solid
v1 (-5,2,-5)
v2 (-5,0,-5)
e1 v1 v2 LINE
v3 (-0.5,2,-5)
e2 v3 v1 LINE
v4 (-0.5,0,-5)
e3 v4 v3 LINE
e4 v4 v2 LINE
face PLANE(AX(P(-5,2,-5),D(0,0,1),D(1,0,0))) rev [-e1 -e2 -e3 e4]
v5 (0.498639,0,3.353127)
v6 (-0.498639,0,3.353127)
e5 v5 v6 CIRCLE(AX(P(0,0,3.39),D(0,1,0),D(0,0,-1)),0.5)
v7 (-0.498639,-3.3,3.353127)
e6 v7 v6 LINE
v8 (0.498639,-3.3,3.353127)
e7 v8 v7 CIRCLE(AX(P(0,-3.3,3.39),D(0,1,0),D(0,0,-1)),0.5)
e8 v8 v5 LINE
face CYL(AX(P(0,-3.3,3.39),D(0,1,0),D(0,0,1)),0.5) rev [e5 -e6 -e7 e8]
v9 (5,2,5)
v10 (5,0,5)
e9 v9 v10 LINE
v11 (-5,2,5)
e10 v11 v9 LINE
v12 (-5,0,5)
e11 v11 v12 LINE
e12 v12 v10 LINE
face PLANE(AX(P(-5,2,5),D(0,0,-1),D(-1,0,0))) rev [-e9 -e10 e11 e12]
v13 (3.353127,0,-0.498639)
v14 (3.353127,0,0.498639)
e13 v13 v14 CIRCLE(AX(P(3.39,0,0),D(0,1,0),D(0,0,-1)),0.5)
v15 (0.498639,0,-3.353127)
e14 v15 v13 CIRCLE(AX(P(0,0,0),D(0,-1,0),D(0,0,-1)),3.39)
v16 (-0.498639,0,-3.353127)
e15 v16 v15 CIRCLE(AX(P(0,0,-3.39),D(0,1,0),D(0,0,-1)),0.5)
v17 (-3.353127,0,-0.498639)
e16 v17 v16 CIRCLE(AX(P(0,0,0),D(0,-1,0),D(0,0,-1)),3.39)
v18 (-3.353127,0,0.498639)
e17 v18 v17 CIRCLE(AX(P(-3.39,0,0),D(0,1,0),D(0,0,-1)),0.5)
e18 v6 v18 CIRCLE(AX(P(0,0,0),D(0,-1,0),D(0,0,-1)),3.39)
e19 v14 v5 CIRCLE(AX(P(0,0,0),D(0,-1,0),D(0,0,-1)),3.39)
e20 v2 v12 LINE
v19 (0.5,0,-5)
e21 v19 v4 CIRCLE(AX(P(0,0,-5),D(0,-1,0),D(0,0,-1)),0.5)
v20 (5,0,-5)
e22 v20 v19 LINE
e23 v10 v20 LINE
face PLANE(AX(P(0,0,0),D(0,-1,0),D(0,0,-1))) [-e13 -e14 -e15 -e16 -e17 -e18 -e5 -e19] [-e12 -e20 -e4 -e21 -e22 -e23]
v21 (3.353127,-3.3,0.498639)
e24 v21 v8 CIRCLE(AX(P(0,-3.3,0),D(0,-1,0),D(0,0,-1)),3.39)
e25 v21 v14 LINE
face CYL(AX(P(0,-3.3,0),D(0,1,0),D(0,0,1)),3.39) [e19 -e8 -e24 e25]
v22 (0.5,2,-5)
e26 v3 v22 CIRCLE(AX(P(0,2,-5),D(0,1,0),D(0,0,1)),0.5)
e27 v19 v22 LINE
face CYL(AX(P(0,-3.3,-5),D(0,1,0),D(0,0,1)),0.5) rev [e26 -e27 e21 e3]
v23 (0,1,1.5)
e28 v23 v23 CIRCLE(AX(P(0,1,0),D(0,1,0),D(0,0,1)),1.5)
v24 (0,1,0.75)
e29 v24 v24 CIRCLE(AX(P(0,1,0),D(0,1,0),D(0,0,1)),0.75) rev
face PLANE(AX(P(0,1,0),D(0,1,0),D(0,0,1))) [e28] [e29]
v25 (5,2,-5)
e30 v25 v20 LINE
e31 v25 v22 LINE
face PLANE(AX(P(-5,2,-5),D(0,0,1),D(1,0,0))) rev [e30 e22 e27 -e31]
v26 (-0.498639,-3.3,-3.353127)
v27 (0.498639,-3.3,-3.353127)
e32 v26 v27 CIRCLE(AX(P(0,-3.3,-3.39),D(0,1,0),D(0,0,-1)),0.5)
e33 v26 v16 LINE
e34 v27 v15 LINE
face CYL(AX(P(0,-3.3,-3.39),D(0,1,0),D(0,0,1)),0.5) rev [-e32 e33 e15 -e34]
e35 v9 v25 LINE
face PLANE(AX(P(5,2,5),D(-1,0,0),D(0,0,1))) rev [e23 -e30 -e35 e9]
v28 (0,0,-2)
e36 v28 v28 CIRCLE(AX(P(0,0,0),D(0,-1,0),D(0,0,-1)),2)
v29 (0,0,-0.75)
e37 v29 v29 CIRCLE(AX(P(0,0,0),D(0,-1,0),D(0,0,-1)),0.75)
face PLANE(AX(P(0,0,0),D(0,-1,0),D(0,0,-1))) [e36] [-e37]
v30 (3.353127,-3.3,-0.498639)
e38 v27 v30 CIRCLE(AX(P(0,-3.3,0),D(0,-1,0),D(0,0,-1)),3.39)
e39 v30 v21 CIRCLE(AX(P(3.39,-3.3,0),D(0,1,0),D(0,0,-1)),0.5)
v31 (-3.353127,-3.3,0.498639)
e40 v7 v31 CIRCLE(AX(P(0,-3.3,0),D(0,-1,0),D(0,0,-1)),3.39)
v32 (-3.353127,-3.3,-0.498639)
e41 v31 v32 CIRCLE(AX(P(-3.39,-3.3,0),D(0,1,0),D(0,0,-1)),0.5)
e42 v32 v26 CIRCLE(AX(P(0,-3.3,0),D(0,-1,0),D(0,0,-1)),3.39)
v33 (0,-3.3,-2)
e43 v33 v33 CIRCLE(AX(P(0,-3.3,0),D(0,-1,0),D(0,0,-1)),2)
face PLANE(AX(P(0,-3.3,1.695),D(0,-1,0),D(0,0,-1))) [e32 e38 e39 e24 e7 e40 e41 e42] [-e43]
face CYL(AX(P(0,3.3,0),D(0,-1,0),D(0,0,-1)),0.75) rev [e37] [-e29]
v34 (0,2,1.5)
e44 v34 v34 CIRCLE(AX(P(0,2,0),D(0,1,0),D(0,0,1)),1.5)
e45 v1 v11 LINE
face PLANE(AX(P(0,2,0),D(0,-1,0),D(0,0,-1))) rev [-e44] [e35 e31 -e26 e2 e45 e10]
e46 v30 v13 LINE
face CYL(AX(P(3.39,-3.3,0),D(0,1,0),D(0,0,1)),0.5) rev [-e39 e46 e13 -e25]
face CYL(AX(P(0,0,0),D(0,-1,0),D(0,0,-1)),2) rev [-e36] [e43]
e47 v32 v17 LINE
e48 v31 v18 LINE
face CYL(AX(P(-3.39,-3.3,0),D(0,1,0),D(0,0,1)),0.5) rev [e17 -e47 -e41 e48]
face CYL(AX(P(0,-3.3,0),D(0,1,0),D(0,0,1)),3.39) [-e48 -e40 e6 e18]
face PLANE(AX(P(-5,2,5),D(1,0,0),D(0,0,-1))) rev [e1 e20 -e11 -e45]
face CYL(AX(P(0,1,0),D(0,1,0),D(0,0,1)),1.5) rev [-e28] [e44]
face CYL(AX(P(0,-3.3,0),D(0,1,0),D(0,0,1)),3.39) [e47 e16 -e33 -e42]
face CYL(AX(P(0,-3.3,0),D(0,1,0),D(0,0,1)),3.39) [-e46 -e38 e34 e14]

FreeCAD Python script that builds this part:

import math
import FreeCAD as App
import Part
import Sketcher
from FreeCAD import Vector
Q = App.Units.Quantity

doc = App.newDocument("Part")
body = doc.addObject("PartDesign::Body", "Body")

sketch1 = body.newObject("Sketcher::SketchObject", "Sketch")
sketch1.AttachmentSupport = (doc.getObject("XZ_Plane"), [""])
sketch1.MapMode = "FlatFace"
sketch1.addGeometry(Part.LineSegment(Vector(-5, -5, 0), Vector(-5, 5, 0)), False)
sketch1.addGeometry(Part.LineSegment(Vector(-5, 5, 0), Vector(5, 5, 0)), False)
sketch1.addGeometry(Part.LineSegment(Vector(5, 5, 0), Vector(5, -5, 0)), False)
sketch1.addGeometry(Part.LineSegment(Vector(5, -5, 0), Vector(-5, -5, 0)), False)
sketch1.addConstraint(Sketcher.Constraint("Coincident", 0, 2, 1, 1))
sketch1.addConstraint(Sketcher.Constraint("Coincident", 1, 2, 2, 1))
sketch1.addConstraint(Sketcher.Constraint("Coincident", 2, 2, 3, 1))
sketch1.addConstraint(Sketcher.Constraint("Coincident", 3, 2, 0, 1))
sketch1.addConstraint(Sketcher.Constraint("Vertical", 0))
sketch1.addConstraint(Sketcher.Constraint("Horizontal", 1))
sketch1.addConstraint(Sketcher.Constraint("Vertical", 2))
sketch1.addConstraint(Sketcher.Constraint("Horizontal", 3))
sketch1.addConstraint(Sketcher.Constraint("Symmetric", 0, 2, 2, 2, -1, 1))
sketch1.addConstraint(Sketcher.Constraint("Equal", 3, 0))
sketch1.addConstraint(Sketcher.Constraint("DistanceX", 1, 1, 1, 2, Q("10 mm")))
pad1 = body.newObject("PartDesign::Pad", "Pad")
pad1.Profile = sketch1
pad1.Length = 2
pad1.Reversed = True

sketch2 = body.newObject("Sketcher::SketchObject", "Sketch001")
sketch2.AttachmentSupport = (doc.getObject("XZ_Plane"), [""])
sketch2.MapMode = "FlatFace"
sketch2.addGeometry(Part.ArcOfCircle(Part.Circle(Vector(0, 0, 0), Vector(0, 0, 1), 3.39), math.radians(-171.541616), math.radians(-98.458384)), False)
sketch2.addGeometry(Part.ArcOfCircle(Part.Circle(Vector(0, -3.39, 0), Vector(0, 0, 1), 0.5), math.radians(4.229192), math.radians(175.770808)), False)
sketch2.addGeometry(Part.ArcOfCircle(Part.Circle(Vector(0, 0, 0), Vector(0, 0, 1), 3.39), math.radians(-81.541616), math.radians(-8.458384)), False)
sketch2.addGeometry(Part.ArcOfCircle(Part.Circle(Vector(3.39, 0, 0), Vector(0, 0, 1), 0.5), math.radians(94.229192), math.radians(265.770808)), False)
sketch2.addGeometry(Part.ArcOfCircle(Part.Circle(Vector(0, 0, 0), Vector(0, 0, 1), 3.39), math.radians(8.458384), math.radians(81.541616)), False)
sketch2.addGeometry(Part.ArcOfCircle(Part.Circle(Vector(0, 3.39, 0), Vector(0, 0, 1), 0.5), math.radians(-175.770808), math.radians(-4.229192)), False)
sketch2.addGeometry(Part.ArcOfCircle(Part.Circle(Vector(0, 0, 0), Vector(0, 0, 1), 3.39), math.radians(98.458384), math.radians(171.541616)), False)
sketch2.addGeometry(Part.ArcOfCircle(Part.Circle(Vector(-3.39, 0, 0), Vector(0, 0, 1), 0.5), math.radians(-85.770808), math.radians(85.770808)), False)
sketch2.addConstraint(Sketcher.Constraint("Coincident", 0, 2, 1, 2))
sketch2.addConstraint(Sketcher.Constraint("Coincident", 1, 1, 2, 1))
sketch2.addConstraint(Sketcher.Constraint("Coincident", 2, 2, 3, 2))
sketch2.addConstraint(Sketcher.Constraint("Coincident", 3, 1, 4, 1))
sketch2.addConstraint(Sketcher.Constraint("Coincident", 4, 2, 5, 2))
sketch2.addConstraint(Sketcher.Constraint("Coincident", 5, 1, 6, 1))
sketch2.addConstraint(Sketcher.Constraint("Coincident", 6, 2, 7, 2))
sketch2.addConstraint(Sketcher.Constraint("Coincident", 7, 1, 0, 1))
sketch2.addConstraint(Sketcher.Constraint("Coincident", 0, 3, -1, 1))
sketch2.addConstraint(Sketcher.Constraint("Coincident", 2, 3, -1, 1))
sketch2.addConstraint(Sketcher.Constraint("Coincident", 4, 3, -1, 1))
sketch2.addConstraint(Sketcher.Constraint("Coincident", 6, 3, -1, 1))
sketch2.addConstraint(Sketcher.Constraint("Equal", 0, 2))
sketch2.addConstraint(Sketcher.Constraint("Equal", 1, 3))
sketch2.addConstraint(Sketcher.Constraint("Equal", 2, 4))
sketch2.addConstraint(Sketcher.Constraint("Equal", 3, 5))
sketch2.addConstraint(Sketcher.Constraint("Equal", 4, 6))
sketch2.addConstraint(Sketcher.Constraint("Equal", 5, 7))
sketch2.addConstraint(Sketcher.Constraint("Symmetric", 1, 3, 5, 3, -1, 1))
sketch2.addConstraint(Sketcher.Constraint("Symmetric", 3, 3, 7, 3, -1, 1))
sketch2.addConstraint(Sketcher.Constraint("PointOnObject", 1, 3, -2))
sketch2.addConstraint(Sketcher.Constraint("PointOnObject", 3, 3, -1))
sketch2.addConstraint(Sketcher.Constraint("Radius", 1, Q("0.5 mm")))
sketch2.addConstraint(Sketcher.Constraint("Radius", 0, Q("3.39 mm")))
sketch2.addConstraint(Sketcher.Constraint("DistanceY", 1, 3, -1, 1, Q("3.39 mm")))
sketch2.addConstraint(Sketcher.Constraint("DistanceX", -1, 1, 3, 3, Q("3.39 mm")))
pad2 = body.newObject("PartDesign::Pad", "Pad001")
pad2.Profile = sketch2
pad2.Length = 3.3

sketch3 = body.newObject("Sketcher::SketchObject", "Sketch002")
sketch3.AttachmentSupport = (doc.getObject("XZ_Plane"), [""])
sketch3.MapMode = "FlatFace"
sketch3.AttachmentOffset = App.Placement(Vector(0, 0, 3.3), App.Rotation())
sketch3.addGeometry(Part.Circle(Vector(0, 0, 0), Vector(0, 0, 1), 2), False)
sketch3.addConstraint(Sketcher.Constraint("Coincident", 0, 3, -1, 1))
sketch3.addConstraint(Sketcher.Constraint("Diameter", 0, Q("4 mm")))
pocket1 = body.newObject("PartDesign::Pocket", "Pocket")
pocket1.Profile = sketch3
pocket1.Length = 3.3

sketch4 = body.newObject("Sketcher::SketchObject", "Sketch003")
sketch4.AttachmentSupport = (doc.getObject("XZ_Plane"), [""])
sketch4.MapMode = "FlatFace"
sketch4.addGeometry(Part.Circle(Vector(0, 0, 0), Vector(0, 0, 1), 0.75), False)
sketch4.addConstraint(Sketcher.Constraint("Coincident", 0, 3, -1, 1))
sketch4.addConstraint(Sketcher.Constraint("Diameter", 0, Q("1.5 mm")))
pocket2 = body.newObject("PartDesign::Pocket", "Pocket001")
pocket2.Profile = sketch4
pocket2.Length = 3.3

sketch5 = body.newObject("Sketcher::SketchObject", "Sketch004")
sketch5.AttachmentSupport = (doc.getObject("XZ_Plane"), [""])
sketch5.MapMode = "FlatFace"
sketch5.AttachmentOffset = App.Placement(Vector(0, 0, -2), App.Rotation())
sketch5.addGeometry(Part.Circle(Vector(0, 0, 0), Vector(0, 0, 1), 1.5), False)
sketch5.addConstraint(Sketcher.Constraint("Coincident", 0, 3, -1, 1))
sketch5.addConstraint(Sketcher.Constraint("Diameter", 0, Q("3 mm")))
pocket3 = body.newObject("PartDesign::Pocket", "Pocket002")
pocket3.Profile = sketch5
pocket3.Length = 1
pocket3.Reversed = True

sketch6 = body.newObject("Sketcher::SketchObject", "Sketch005")
sketch6.AttachmentSupport = (doc.getObject("XZ_Plane"), [""])
sketch6.MapMode = "FlatFace"
sketch6.AttachmentOffset = App.Placement(Vector(0, 0, -2), App.Rotation())
sketch6.addGeometry(Part.LineSegment(Vector(0.5, -5, 0), Vector(-0.5, -5, 0)), False)
sketch6.addGeometry(Part.ArcOfCircle(Part.Circle(Vector(0, -5, 0), Vector(0, 0, 1), 0.5), math.radians(0), math.radians(180)), False)
sketch6.addConstraint(Sketcher.Constraint("Coincident", 0, 1, 1, 1))
sketch6.addConstraint(Sketcher.Constraint("Coincident", 1, 2, 0, 2))
sketch6.addConstraint(Sketcher.Constraint("Horizontal", 0))
sketch6.addConstraint(Sketcher.Constraint("PointOnObject", 1, 3, -2))
sketch6.addConstraint(Sketcher.Constraint("Horizontal", 1, 3, 0, 1))
sketch6.addConstraint(Sketcher.Constraint("Radius", 1, Q("0.5 mm")))
sketch6.addConstraint(Sketcher.Constraint("DistanceY", 1, 3, -1, 1, Q("5 mm")))
pocket4 = body.newObject("PartDesign::Pocket", "Pocket003")
pocket4.Profile = sketch6
pocket4.Type = "ThroughAll"
pocket4.Reversed = True

doc.recompute()
